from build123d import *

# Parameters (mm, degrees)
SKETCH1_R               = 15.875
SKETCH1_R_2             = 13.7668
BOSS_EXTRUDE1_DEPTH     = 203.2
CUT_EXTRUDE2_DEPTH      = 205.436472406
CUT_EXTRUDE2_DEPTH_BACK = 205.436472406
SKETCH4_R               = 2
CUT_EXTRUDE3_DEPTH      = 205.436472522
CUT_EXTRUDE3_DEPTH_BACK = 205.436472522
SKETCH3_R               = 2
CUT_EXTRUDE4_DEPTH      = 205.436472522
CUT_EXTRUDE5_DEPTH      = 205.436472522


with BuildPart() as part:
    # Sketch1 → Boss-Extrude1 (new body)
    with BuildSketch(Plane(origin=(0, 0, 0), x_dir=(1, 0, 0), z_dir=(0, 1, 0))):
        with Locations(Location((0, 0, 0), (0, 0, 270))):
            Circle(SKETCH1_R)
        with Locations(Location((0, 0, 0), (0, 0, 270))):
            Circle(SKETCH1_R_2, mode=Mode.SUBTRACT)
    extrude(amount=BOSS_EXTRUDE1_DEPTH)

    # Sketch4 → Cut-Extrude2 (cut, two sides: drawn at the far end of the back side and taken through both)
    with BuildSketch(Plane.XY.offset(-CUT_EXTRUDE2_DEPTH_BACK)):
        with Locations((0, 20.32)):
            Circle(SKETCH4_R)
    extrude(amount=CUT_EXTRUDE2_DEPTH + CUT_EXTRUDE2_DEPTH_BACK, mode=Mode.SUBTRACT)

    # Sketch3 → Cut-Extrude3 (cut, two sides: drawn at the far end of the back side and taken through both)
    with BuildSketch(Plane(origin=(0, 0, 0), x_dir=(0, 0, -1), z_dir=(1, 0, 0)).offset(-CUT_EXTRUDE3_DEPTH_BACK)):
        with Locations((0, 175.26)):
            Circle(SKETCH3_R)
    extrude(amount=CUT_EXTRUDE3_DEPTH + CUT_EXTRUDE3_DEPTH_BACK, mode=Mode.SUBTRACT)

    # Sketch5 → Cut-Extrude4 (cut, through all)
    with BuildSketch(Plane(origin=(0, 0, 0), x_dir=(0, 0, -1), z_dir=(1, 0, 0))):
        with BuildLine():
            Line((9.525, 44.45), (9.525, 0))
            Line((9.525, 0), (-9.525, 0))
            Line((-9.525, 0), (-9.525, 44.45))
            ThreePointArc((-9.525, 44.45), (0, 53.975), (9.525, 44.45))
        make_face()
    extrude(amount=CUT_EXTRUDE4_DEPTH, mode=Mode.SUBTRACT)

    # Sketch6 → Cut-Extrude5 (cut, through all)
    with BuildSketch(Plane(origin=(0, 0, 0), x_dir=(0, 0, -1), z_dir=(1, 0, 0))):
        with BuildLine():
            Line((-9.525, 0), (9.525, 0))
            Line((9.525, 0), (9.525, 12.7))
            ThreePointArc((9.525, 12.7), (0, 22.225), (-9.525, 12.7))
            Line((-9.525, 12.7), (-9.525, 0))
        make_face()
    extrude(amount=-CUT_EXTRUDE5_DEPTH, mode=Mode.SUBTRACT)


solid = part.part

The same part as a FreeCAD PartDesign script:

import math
import FreeCAD as App
import Part
import Sketcher
Q = App.Units.Quantity

doc = App.newDocument("Part")
body = doc.addObject("PartDesign::Body", "Body")

sketch1 = body.newObject("Sketcher::SketchObject", "Sketch")
sketch1.AttachmentSupport = (doc.getObject("XZ_Plane"), [""])
sketch1.MapMode = "FlatFace"
sketch1.addGeometry(Part.Circle(App.Vector(0, 0, 0), App.Vector(0, 0, 1), 16), False)
sketch1.addGeometry(Part.Circle(App.Vector(0, 0, 0), App.Vector(0, 0, 1), 14), False)
sketch1.addConstraint(Sketcher.Constraint("Coincident", 0, 3, -1, 1))
sketch1.addConstraint(Sketcher.Constraint("Coincident", 1, 3, -1, 1))
sketch1.addConstraint(Sketcher.Constraint("Diameter", 0, Q("1.25 in")))
sketch1.addConstraint(Sketcher.Constraint("Diameter", 1, Q("1.084 in")))
pad1 = body.newObject("PartDesign::Pad", "Pad")
pad1.Profile = sketch1
pad1.Length = Q("8 in")
pad1.Reversed = True

sketch2 = body.newObject("Sketcher::SketchObject", "Sketch001")
sketch2.AttachmentSupport = (doc.getObject("XY_Plane"), [""])
sketch2.MapMode = "FlatFace"
sketch2.addGeometry(Part.Circle(App.Vector(0, 20.3, 0), App.Vector(0, 0, 1), 2), False)
sketch2.addConstraint(Sketcher.Constraint("PointOnObject", 0, 3, -2))
sketch2.addConstraint(Sketcher.Constraint("DistanceY", -1, 1, 0, 3, Q("0.8 in")))
sketch2.addConstraint(Sketcher.Constraint("Diameter", 0, 4.0))
pocket1 = body.newObject("PartDesign::Pocket", "Pocket")
pocket1.Profile = sketch2
pocket1.Type = "ThroughAll"
pocket1.Midplane = True

sketch3 = body.newObject("Sketcher::SketchObject", "Sketch002")
sketch3.AttachmentSupport = (doc.getObject("YZ_Plane"), [""])
sketch3.MapMode = "FlatFace"
sketch3.addGeometry(Part.Circle(App.Vector(175.3, 0, 0), App.Vector(0, 0, 1), 2), False)
sketch3.addConstraint(Sketcher.Constraint("PointOnObject", 0, 3, -1))
sketch3.addConstraint(Sketcher.Constraint("DistanceX", -1, 1, 0, 3, Q("6.9 in")))
sketch3.addConstraint(Sketcher.Constraint("Diameter", 0, 4.0))
pocket2 = body.newObject("PartDesign::Pocket", "Pocket001")
pocket2.Profile = sketch3
pocket2.Type = "ThroughAll"
pocket2.Midplane = True

sketch4 = body.newObject("Sketcher::SketchObject", "Sketch003")
sketch4.AttachmentSupport = (doc.getObject("YZ_Plane"), [""])
sketch4.MapMode = "FlatFace"
sketch4.addGeometry(Part.LineSegment(App.Vector(0, -10, 0), App.Vector(44, -10, 0)), False)
sketch4.addGeometry(Part.ArcOfCircle(Part.Circle(App.Vector(44, 0, 0), App.Vector(0, 0, 1), 10), math.radians(-90), math.radians(90)), False)
sketch4.addGeometry(Part.LineSegment(App.Vector(44, 10, 0), App.Vector(0, 10, 0)), False)
sketch4.addGeometry(Part.LineSegment(App.Vector(0, 10, 0), App.Vector(0, -10, 0)), False)
sketch4.addConstraint(Sketcher.Constraint("Tangent", 0, 2, 1, 1))
sketch4.addConstraint(Sketcher.Constraint("Tangent", 1, 2, 2, 1))
sketch4.addConstraint(Sketcher.Constraint("Coincident", 2, 2, 3, 1))
sketch4.addConstraint(Sketcher.Constraint("Coincident", 3, 2, 0, 1))
sketch4.addConstraint(Sketcher.Constraint("Horizontal", 0))
sketch4.addConstraint(Sketcher.Constraint("Horizontal", 2))
sketch4.addConstraint(Sketcher.Constraint("Vertical", 3))
sketch4.addConstraint(Sketcher.Constraint("Symmetric", 2, 2, 3, 2, -1, 1))
sketch4.addConstraint(Sketcher.Constraint("Radius", 1, Q("0.375 in")))
sketch4.addConstraint(Sketcher.Constraint("DistanceX", 0, 1, 0, 2, Q("1.75 in")))
pocket3 = body.newObject("PartDesign::Pocket", "Pocket002")
pocket3.Profile = sketch4
pocket3.Type = "ThroughAll"
pocket3.Reversed = True

sketch5 = body.newObject("Sketcher::SketchObject", "Sketch004")
sketch5.AttachmentSupport = (doc.getObject("YZ_Plane"), [""])
sketch5.MapMode = "FlatFace"
sketch5.addGeometry(Part.LineSegment(App.Vector(0, 10, 0), App.Vector(0, -10, 0)), False)
sketch5.addGeometry(Part.LineSegment(App.Vector(0, -10, 0), App.Vector(13, -10, 0)), False)
sketch5.addGeometry(Part.ArcOfCircle(Part.Circle(App.Vector(13, 0, 0), App.Vector(0, 0, 1), 10), math.radians(-90), math.radians(90)), False)
sketch5.addGeometry(Part.LineSegment(App.Vector(13, 10, 0), App.Vector(0, 10, 0)), False)
sketch5.addConstraint(Sketcher.Constraint("Coincident", 0, 2, 1, 1))
sketch5.addConstraint(Sketcher.Constraint("Tangent", 1, 2, 2, 1))
sketch5.addConstraint(Sketcher.Constraint("Tangent", 2, 2, 3, 1))
sketch5.addConstraint(Sketcher.Constraint("Coincident", 3, 2, 0, 1))
sketch5.addConstraint(Sketcher.Constraint("Vertical", 0))
sketch5.addConstraint(Sketcher.Constraint("Horizontal", 1))
sketch5.addConstraint(Sketcher.Constraint("Horizontal", 3))
sketch5.addConstraint(Sketcher.Constraint("Symmetric", 0, 2, 3, 2, -1, 1))
sketch5.addConstraint(Sketcher.Constraint("DistanceX", 1, 1, 1, 2, Q("0.5 in")))
sketch5.addConstraint(Sketcher.Constraint("Radius", 2, Q("0.375 in")))
pocket4 = body.newObject("PartDesign::Pocket", "Pocket003")
pocket4.Profile = sketch5
pocket4.Type = "ThroughAll"

doc.recompute()
